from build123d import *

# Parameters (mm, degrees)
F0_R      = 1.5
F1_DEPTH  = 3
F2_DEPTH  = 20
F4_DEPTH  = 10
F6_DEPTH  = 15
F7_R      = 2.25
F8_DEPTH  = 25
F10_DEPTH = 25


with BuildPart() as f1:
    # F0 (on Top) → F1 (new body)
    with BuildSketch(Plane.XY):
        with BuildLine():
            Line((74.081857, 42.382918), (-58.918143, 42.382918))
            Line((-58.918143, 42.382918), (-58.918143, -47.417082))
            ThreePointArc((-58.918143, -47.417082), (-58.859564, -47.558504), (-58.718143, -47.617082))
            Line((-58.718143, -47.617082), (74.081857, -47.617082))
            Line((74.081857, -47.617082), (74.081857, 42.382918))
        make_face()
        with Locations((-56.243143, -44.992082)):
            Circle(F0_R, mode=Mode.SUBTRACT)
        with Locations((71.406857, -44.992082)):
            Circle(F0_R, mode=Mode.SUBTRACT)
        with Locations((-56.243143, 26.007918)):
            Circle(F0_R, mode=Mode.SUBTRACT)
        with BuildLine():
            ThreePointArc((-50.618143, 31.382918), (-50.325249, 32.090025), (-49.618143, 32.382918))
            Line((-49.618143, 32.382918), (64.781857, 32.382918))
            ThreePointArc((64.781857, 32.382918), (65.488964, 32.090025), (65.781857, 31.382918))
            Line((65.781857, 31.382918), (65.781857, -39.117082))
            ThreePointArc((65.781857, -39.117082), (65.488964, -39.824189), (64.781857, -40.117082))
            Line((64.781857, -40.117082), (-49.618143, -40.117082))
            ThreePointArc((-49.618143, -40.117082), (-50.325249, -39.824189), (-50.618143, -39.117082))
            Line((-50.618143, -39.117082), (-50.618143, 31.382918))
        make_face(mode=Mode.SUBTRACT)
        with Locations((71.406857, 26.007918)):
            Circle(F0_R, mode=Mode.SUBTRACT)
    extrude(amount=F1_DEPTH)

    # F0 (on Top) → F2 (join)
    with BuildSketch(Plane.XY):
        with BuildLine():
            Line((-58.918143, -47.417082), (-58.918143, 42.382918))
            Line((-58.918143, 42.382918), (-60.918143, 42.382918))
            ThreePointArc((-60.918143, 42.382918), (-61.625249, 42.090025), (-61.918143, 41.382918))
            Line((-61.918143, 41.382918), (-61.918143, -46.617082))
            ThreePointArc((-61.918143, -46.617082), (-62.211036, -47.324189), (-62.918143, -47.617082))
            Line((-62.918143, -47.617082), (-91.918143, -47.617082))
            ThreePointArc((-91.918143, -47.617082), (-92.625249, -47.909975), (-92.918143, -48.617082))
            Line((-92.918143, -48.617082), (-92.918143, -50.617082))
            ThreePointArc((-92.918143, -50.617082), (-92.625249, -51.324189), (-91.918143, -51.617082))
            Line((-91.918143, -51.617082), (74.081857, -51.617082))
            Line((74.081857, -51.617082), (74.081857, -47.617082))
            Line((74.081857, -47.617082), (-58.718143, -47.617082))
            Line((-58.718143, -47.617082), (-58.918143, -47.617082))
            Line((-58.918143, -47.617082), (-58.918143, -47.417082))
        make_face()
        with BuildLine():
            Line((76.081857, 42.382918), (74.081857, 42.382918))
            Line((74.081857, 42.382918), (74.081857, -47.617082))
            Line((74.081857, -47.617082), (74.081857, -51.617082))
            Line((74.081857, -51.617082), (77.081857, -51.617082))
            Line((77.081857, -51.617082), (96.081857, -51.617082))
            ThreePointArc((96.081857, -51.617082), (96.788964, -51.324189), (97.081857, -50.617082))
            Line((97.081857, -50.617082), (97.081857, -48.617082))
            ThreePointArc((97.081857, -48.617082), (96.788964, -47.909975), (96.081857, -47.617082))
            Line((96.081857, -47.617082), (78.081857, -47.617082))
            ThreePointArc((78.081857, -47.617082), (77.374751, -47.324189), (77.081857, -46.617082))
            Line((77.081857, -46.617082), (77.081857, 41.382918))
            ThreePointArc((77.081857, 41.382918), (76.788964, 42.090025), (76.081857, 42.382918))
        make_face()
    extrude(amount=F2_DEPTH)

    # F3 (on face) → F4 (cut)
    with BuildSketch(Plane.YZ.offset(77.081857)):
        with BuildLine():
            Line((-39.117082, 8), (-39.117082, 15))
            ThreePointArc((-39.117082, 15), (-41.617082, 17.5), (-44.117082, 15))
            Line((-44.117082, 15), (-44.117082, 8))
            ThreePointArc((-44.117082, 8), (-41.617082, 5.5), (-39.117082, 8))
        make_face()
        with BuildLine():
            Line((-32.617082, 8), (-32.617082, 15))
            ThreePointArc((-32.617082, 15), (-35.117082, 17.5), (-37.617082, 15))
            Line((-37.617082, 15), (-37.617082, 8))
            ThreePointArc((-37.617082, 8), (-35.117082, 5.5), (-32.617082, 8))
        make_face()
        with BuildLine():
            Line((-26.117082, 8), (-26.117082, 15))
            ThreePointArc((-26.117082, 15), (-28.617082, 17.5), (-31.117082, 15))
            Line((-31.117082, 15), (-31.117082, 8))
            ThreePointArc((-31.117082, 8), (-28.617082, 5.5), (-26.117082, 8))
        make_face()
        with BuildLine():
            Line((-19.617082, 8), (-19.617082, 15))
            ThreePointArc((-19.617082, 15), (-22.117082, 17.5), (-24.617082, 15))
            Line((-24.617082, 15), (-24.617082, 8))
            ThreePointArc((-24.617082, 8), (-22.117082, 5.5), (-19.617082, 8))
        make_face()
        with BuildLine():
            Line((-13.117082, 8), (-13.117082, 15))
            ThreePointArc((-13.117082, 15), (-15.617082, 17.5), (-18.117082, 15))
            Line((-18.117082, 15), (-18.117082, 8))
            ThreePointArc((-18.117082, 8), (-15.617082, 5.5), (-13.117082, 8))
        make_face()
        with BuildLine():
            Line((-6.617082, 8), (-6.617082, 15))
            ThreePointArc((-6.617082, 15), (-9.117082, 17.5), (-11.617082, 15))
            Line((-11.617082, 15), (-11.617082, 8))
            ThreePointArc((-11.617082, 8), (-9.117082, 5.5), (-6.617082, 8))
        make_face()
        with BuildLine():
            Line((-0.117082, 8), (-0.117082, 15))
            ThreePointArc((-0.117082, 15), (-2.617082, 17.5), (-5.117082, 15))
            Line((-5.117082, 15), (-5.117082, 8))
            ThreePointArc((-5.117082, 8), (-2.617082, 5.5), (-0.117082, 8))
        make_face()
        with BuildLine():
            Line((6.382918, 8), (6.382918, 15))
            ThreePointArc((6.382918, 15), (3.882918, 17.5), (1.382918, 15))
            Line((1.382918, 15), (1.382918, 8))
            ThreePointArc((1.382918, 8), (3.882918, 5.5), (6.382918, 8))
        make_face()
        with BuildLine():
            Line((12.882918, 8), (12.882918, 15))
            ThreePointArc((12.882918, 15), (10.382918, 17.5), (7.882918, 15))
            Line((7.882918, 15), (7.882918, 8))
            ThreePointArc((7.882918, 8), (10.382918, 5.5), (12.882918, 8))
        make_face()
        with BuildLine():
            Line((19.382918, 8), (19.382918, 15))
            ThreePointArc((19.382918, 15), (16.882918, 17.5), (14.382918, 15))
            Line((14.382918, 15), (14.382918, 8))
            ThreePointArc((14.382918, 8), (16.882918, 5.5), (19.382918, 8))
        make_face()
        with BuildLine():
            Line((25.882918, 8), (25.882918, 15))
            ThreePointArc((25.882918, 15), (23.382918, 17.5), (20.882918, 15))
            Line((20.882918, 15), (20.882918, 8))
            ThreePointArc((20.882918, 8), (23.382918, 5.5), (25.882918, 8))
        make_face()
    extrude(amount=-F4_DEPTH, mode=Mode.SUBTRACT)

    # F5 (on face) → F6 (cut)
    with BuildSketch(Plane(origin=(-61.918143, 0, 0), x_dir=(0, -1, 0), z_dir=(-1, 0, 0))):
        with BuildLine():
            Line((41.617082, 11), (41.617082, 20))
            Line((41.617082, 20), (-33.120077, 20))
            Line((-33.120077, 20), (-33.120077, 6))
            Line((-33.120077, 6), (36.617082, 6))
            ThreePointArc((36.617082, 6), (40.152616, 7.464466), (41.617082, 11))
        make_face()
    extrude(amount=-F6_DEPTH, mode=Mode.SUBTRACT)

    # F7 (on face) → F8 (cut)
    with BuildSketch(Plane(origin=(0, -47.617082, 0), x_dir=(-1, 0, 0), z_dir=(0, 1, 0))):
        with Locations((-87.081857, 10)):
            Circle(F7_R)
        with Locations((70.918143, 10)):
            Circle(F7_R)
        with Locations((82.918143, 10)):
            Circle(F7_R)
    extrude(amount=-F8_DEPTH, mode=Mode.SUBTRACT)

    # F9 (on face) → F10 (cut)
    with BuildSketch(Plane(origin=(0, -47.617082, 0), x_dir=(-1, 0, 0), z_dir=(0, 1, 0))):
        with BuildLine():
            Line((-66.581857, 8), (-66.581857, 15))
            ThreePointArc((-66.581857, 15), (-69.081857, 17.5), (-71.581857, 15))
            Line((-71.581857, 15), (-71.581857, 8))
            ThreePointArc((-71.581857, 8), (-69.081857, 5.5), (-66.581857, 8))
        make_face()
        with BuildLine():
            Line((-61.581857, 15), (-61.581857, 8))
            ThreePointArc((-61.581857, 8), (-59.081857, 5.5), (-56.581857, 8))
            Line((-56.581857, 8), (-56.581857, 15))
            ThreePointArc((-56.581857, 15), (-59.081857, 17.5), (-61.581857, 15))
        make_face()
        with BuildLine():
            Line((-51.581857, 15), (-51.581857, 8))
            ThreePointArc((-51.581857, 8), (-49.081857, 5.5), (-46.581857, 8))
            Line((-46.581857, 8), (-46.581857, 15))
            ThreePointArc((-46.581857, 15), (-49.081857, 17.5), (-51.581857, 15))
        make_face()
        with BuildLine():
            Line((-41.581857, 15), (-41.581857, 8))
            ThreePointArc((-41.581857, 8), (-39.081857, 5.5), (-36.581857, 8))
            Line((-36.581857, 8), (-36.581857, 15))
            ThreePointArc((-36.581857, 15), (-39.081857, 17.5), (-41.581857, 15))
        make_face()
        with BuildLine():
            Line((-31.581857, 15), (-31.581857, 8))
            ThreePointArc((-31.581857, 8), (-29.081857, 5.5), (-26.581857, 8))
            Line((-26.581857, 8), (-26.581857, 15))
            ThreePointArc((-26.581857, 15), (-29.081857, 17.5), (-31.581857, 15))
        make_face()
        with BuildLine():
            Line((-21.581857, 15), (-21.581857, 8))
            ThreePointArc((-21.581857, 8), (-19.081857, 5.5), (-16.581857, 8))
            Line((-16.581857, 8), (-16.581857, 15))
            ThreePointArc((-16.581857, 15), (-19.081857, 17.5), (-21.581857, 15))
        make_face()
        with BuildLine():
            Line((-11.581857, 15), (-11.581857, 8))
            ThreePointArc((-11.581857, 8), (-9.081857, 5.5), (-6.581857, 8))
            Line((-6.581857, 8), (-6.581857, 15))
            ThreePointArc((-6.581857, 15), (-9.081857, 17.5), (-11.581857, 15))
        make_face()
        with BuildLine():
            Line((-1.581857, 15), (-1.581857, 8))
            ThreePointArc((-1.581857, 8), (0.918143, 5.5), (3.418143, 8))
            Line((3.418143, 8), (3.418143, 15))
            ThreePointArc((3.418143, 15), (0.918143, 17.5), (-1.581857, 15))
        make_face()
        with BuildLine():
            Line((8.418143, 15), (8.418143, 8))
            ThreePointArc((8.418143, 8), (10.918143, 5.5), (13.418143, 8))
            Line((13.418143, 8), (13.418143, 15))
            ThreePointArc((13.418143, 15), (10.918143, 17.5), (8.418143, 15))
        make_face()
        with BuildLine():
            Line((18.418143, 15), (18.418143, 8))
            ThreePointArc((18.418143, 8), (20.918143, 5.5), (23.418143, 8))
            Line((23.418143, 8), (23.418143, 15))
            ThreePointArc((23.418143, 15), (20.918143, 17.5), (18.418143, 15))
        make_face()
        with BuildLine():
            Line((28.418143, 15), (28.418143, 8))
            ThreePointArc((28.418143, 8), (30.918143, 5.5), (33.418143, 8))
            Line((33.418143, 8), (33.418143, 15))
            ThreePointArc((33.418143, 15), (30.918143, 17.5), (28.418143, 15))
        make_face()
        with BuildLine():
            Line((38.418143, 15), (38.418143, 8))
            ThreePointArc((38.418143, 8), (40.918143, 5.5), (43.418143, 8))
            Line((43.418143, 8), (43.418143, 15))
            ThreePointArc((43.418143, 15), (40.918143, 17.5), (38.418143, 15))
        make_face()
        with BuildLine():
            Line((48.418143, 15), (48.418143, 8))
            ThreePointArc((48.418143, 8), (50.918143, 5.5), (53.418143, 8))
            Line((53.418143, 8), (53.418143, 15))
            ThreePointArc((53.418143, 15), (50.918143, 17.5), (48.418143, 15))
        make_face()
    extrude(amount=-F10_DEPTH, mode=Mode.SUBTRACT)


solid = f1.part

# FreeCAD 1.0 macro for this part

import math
import FreeCAD as App
import Part
import Sketcher

V = App.Vector
Q = App.Units.Quantity

doc = App.newDocument("Part")
body = doc.addObject("PartDesign::Body", "Body")

# Sketch on XY plane
sketch1 = body.newObject("Sketcher::SketchObject", "Sketch")
sketch1.AttachmentSupport = (doc.getObject("XY_Plane"), [""])
sketch1.MapMode = "FlatFace"
sketch1.addGeometry([
    Part.LineSegment(V(74.08, 42.38, 0), V(-58.92, 42.38, 0)),  # 0
    Part.LineSegment(V(-58.92, 42.38, 0), V(-58.92, -47.42, 0)),  # 1
    Part.ArcOfCircle(Part.Circle(V(-58.72, -47.42, 0), V(0, 0, 1), 0.2), math.radians(180), math.radians(270)),  # 2
    Part.LineSegment(V(-58.72, -47.62, 0), V(74.08, -47.62, 0)),  # 3
    Part.LineSegment(V(74.08, -47.62, 0), V(74.08, 42.38, 0)),  # 4
    Part.Circle(V(-56.24, -44.99, 0), V(0, 0, 1), 1.5),  # 5
    Part.Circle(V(71.41, -44.99, 0), V(0, 0, 1), 1.5),  # 6
    Part.Circle(V(-56.24, 26.01, 0), V(0, 0, 1), 1.5),  # 7
    Part.LineSegment(V(-50.62, -39.12, 0), V(-50.62, 31.38, 0)),  # 8
    Part.ArcOfCircle(Part.Circle(V(-49.62, 31.38, 0), V(0, 0, 1), 1), math.radians(90), math.radians(180)),  # 9
    Part.LineSegment(V(-49.62, 32.38, 0), V(64.78, 32.38, 0)),  # 10
    Part.ArcOfCircle(Part.Circle(V(64.78, 31.38, 0), V(0, 0, 1), 1), math.radians(0), math.radians(90)),  # 11
    Part.LineSegment(V(65.78, 31.38, 0), V(65.78, -39.12, 0)),  # 12
    Part.ArcOfCircle(Part.Circle(V(64.78, -39.12, 0), V(0, 0, 1), 1), math.radians(-90), math.radians(0)),  # 13
    Part.LineSegment(V(64.78, -40.12, 0), V(-49.62, -40.12, 0)),  # 14
    Part.ArcOfCircle(Part.Circle(V(-49.62, -39.12, 0), V(0, 0, 1), 1), math.radians(-180), math.radians(-90)),  # 15
    Part.Circle(V(71.41, 26.01, 0), V(0, 0, 1), 1.5),  # 16
], False)
sketch1.addConstraint([
    Sketcher.Constraint("Coincident", 0, 2, 1, 1),
    Sketcher.Constraint("Coincident", 1, 2, 2, 1),
    Sketcher.Constraint("Coincident", 2, 2, 3, 1),
    Sketcher.Constraint("Coincident", 3, 2, 4, 1),
    Sketcher.Constraint("Coincident", 4, 2, 0, 1),
    Sketcher.Constraint("Tangent", 8, 2, 9, 2),
    Sketcher.Constraint("Tangent", 9, 1, 10, 1),
    Sketcher.Constraint("Tangent", 10, 2, 11, 2),
    Sketcher.Constraint("Tangent", 11, 1, 12, 1),
    Sketcher.Constraint("Tangent", 12, 2, 13, 2),
    Sketcher.Constraint("Tangent", 13, 1, 14, 1),
    Sketcher.Constraint("Tangent", 14, 2, 15, 2),
    Sketcher.Constraint("Tangent", 15, 1, 8, 1),
    Sketcher.Constraint("Horizontal", 0),
    Sketcher.Constraint("Vertical", 1),
    Sketcher.Constraint("Horizontal", 3),
    Sketcher.Constraint("Vertical", 4),
    Sketcher.Constraint("Vertical", 8),
    Sketcher.Constraint("Horizontal", 10),
    Sketcher.Constraint("Vertical", 12),
    Sketcher.Constraint("Horizontal", 14),
    Sketcher.Constraint("Equal", 5, 6),
    Sketcher.Constraint("Equal", 6, 7),
    Sketcher.Constraint("Equal", 9, 11),
    Sketcher.Constraint("Equal", 11, 13),
    Sketcher.Constraint("Equal", 13, 15),
    Sketcher.Constraint("Equal", 7, 16),
    Sketcher.Constraint("Horizontal", 5, 3, 6, 3),
    Sketcher.Constraint("Horizontal", 7, 3, 16, 3),
    Sketcher.Constraint("Horizontal", 2, 3, 1, 2),
    Sketcher.Constraint("Vertical", 5, 3, 7, 3),
    Sketcher.Constraint("Vertical", 6, 3, 16, 3),
    Sketcher.Constraint("Diameter", 5, Q("3 mm")),
    Sketcher.Constraint("Radius", 9, Q("1.000001 mm")),
    Sketcher.Constraint("Radius", 2, Q("0.2 mm")),
    Sketcher.Constraint("DistanceX", 0, 2, 0, 1, Q("133 mm")),
    Sketcher.Constraint("DistanceY", 4, 1, 4, 2, Q("90 mm")),
    Sketcher.Constraint("DistanceX", 3, 1, 3, 2, Q("132.8 mm")),
    Sketcher.Constraint("DistanceX", 10, 1, 10, 2, Q("114.4 mm")),
    Sketcher.Constraint("DistanceY", 8, 1, 8, 2, Q("70.5 mm")),
    Sketcher.Constraint("DistanceY", 5, 3, 7, 3, Q("71 mm")),
    Sketcher.Constraint("DistanceY", 9, 3, 0, 2, Q("11.000001 mm")),
    Sketcher.Constraint("DistanceX", 2, 3, 9, 3, Q("9.100001 mm")),
    Sketcher.Constraint("DistanceX", 5, 3, 6, 3, Q("127.65 mm")),
    Sketcher.Constraint("DistanceX", 2, 3, 5, 3, Q("2.475 mm")),
    Sketcher.Constraint("DistanceY", 2, 3, 5, 3, Q("2.425 mm")),
    Sketcher.Constraint("DistanceY", -1, 1, 7, 3, Q("26.007918 mm")),
    Sketcher.Constraint("DistanceX", 2, 3, -1, 1, Q("58.718143 mm")),
])
pad1 = body.newObject("PartDesign::Pad", "Pad")
pad1.Profile = sketch1
pad1.Length = 3

# Sketch on XY plane
sketch2 = body.newObject("Sketcher::SketchObject", "Sketch001")
sketch2.AttachmentSupport = (doc.getObject("XY_Plane"), [""])
sketch2.MapMode = "FlatFace"
sketch2.addGeometry([
    Part.LineSegment(V(74.1, -47.6, 0), V(-58.9, -47.6, 0)),  # 0
    Part.LineSegment(V(-58.9, -47.6, 0), V(-58.9, 42.4, 0)),  # 1
    Part.LineSegment(V(-58.9, 42.4, 0), V(-60.9, 42.4, 0)),  # 2
    Part.ArcOfCircle(Part.Circle(V(-60.9, 41.4, 0), V(0, 0, 1), 1), math.radians(90), math.radians(180)),  # 3
    Part.LineSegment(V(-61.9, 41.4, 0), V(-61.9, -46.6, 0)),  # 4
    Part.ArcOfCircle(Part.Circle(V(-62.9, -46.6, 0), V(0, 0, 1), 1), math.radians(-90), math.radians(0)),  # 5
    Part.LineSegment(V(-62.9, -47.6, 0), V(-91.9, -47.6, 0)),  # 6
    Part.ArcOfCircle(Part.Circle(V(-91.9, -48.6, 0), V(0, 0, 1), 1), math.radians(90), math.radians(180)),  # 7
    Part.LineSegment(V(-92.9, -48.6, 0), V(-92.9, -50.6, 0)),  # 8
    Part.ArcOfCircle(Part.Circle(V(-91.9, -50.6, 0), V(0, 0, 1), 1), math.radians(-180), math.radians(-90)),  # 9
    Part.LineSegment(V(-91.9, -51.6, 0), V(96.1, -51.6, 0)),  # 10
    Part.ArcOfCircle(Part.Circle(V(96.1, -50.6, 0), V(0, 0, 1), 1), math.radians(-90), math.radians(0)),  # 11
    Part.LineSegment(V(97.1, -50.6, 0), V(97.1, -48.6, 0)),  # 12
    Part.ArcOfCircle(Part.Circle(V(96.1, -48.6, 0), V(0, 0, 1), 1), math.radians(0), math.radians(90)),  # 13
    Part.LineSegment(V(96.1, -47.6, 0), V(78.1, -47.6, 0)),  # 14
    Part.ArcOfCircle(Part.Circle(V(78.1, -46.6, 0), V(0, 0, 1), 1), math.radians(-180), math.radians(-90)),  # 15
    Part.LineSegment(V(77.1, -46.6, 0), V(77.1, 41.4, 0)),  # 16
    Part.ArcOfCircle(Part.Circle(V(76.1, 41.4, 0), V(0, 0, 1), 1), math.radians(0), math.radians(90)),  # 17
    Part.LineSegment(V(76.1, 42.4, 0), V(74.1, 42.4, 0)),  # 18
    Part.LineSegment(V(74.1, 42.4, 0), V(74.1, -47.6, 0)),  # 19
], False)
sketch2.addConstraint([
    Sketcher.Constraint("Coincident", 0, 2, 1, 1),
    Sketcher.Constraint("Coincident", 1, 2, 2, 1),
    Sketcher.Constraint("Tangent", 2, 2, 3, 1),
    Sketcher.Constraint("Tangent", 3, 2, 4, 1),
    Sketcher.Constraint("Tangent", 4, 2, 5, 2),
    Sketcher.Constraint("Tangent", 5, 1, 6, 1),
    Sketcher.Constraint("Tangent", 6, 2, 7, 1),
    Sketcher.Constraint("Tangent", 7, 2, 8, 1),
    Sketcher.Constraint("Tangent", 8, 2, 9, 1),
    Sketcher.Constraint("Tangent", 9, 2, 10, 1),
    Sketcher.Constraint("Tangent", 10, 2, 11, 1),
    Sketcher.Constraint("Tangent", 11, 2, 12, 1),
    Sketcher.Constraint("Tangent", 12, 2, 13, 1),
    Sketcher.Constraint("Tangent", 13, 2, 14, 1),
    Sketcher.Constraint("Tangent", 14, 2, 15, 2),
    Sketcher.Constraint("Tangent", 15, 1, 16, 1),
    Sketcher.Constraint("Tangent", 16, 2, 17, 1),
    Sketcher.Constraint("Tangent", 17, 2, 18, 1),
    Sketcher.Constraint("Coincident", 18, 2, 19, 1),
    Sketcher.Constraint("Coincident", 19, 2, 0, 1),
    Sketcher.Constraint("Horizontal", 0),
    Sketcher.Constraint("Vertical", 1),
    Sketcher.Constraint("Horizontal", 2),
    Sketcher.Constraint("Vertical", 4),
    Sketcher.Constraint("Horizontal", 6),
    Sketcher.Constraint("Vertical", 8),
    Sketcher.Constraint("Horizontal", 10),
    Sketcher.Constraint("Vertical", 12),
    Sketcher.Constraint("Horizontal", 14),
    Sketcher.Constraint("Vertical", 16),
    Sketcher.Constraint("Horizontal", 18),
    Sketcher.Constraint("Vertical", 19),
    Sketcher.Constraint("Equal", 3, 5),
    Sketcher.Constraint("Equal", 5, 7),
    Sketcher.Constraint("Equal", 7, 9),
    Sketcher.Constraint("Equal", 9, 11),
    Sketcher.Constraint("Equal", 11, 13),
    Sketcher.Constraint("Equal", 13, 15),
    Sketcher.Constraint("Equal", 15, 17),
    Sketcher.Constraint("Horizontal", 7, 3, 13, 3),
    Sketcher.Constraint("Horizontal", 3, 3, 17, 3),
    Sketcher.Constraint("Horizontal", 0, 2, 5, 1),
    Sketcher.Constraint("Equal", 2, 18),
    Sketcher.Constraint("Equal", 18, 8),
    Sketcher.Constraint("Radius", 3, Q("1.000001 mm")),
    Sketcher.Constraint("DistanceX", 0, 2, 0, 1, Q("133 mm")),
    Sketcher.Constraint("DistanceX", 2, 2, 2, 1, Q("2 mm")),
    Sketcher.Constraint("DistanceX", 6, 2, 6, 1, Q("29 mm")),
    Sketcher.Constraint("DistanceX", 10, 1, 10, 2, Q("188 mm")),
    Sketcher.Constraint("DistanceY", 1, 1, 1, 2, Q("90 mm")),
    Sketcher.Constraint("DistanceY", 9, 3, -1, 1, Q("50.617081 mm")),
    Sketcher.Constraint("DistanceX", 3, 3, -1, 1, Q("60.918142 mm")),
])
pad2 = body.newObject("PartDesign::Pad", "Pad001")
pad2.Profile = sketch2
pad2.Length = 20

# Sketch on YZ plane
sketch3 = body.newObject("Sketcher::SketchObject", "Sketch002")
sketch3.AttachmentSupport = (doc.getObject("YZ_Plane"), [""])
sketch3.MapMode = "FlatFace"
sketch3.AttachmentOffset = App.Placement(V(0, 0, 77.081857), App.Rotation())
sketch3.addGeometry([
    Part.LineSegment(V(-39.1, 8, 0), V(-39.1, 15, 0)),  # 0
    Part.ArcOfCircle(Part.Circle(V(-41.6, 15, 0), V(0, 0, 1), 2.5), math.radians(0), math.radians(180)),  # 1
    Part.LineSegment(V(-44.1, 15, 0), V(-44.1, 8, 0)),  # 2
    Part.ArcOfCircle(Part.Circle(V(-41.6, 8, 0), V(0, 0, 1), 2.5), math.radians(180), math.radians(360)),  # 3
    Part.LineSegment(V(-32.6, 8, 0), V(-32.6, 15, 0)),  # 4
    Part.ArcOfCircle(Part.Circle(V(-35.1, 15, 0), V(0, 0, 1), 2.5), math.radians(0), math.radians(180)),  # 5
    Part.LineSegment(V(-37.6, 15, 0), V(-37.6, 8, 0)),  # 6
    Part.ArcOfCircle(Part.Circle(V(-35.1, 8, 0), V(0, 0, 1), 2.5), math.radians(180), math.radians(360)),  # 7
    Part.LineSegment(V(-26.1, 8, 0), V(-26.1, 15, 0)),  # 8
    Part.ArcOfCircle(Part.Circle(V(-28.6, 15, 0), V(0, 0, 1), 2.5), math.radians(0), math.radians(180)),  # 9
    Part.LineSegment(V(-31.1, 15, 0), V(-31.1, 8, 0)),  # 10
    Part.ArcOfCircle(Part.Circle(V(-28.6, 8, 0), V(0, 0, 1), 2.5), math.radians(180), math.radians(360)),  # 11
    Part.LineSegment(V(-19.6, 8, 0), V(-19.6, 15, 0)),  # 12
    Part.ArcOfCircle(Part.Circle(V(-22.1, 15, 0), V(0, 0, 1), 2.5), math.radians(0), math.radians(180)),  # 13
    Part.LineSegment(V(-24.6, 15, 0), V(-24.6, 8, 0)),  # 14
    Part.ArcOfCircle(Part.Circle(V(-22.1, 8, 0), V(0, 0, 1), 2.5), math.radians(180), math.radians(360)),  # 15
    Part.LineSegment(V(-13.1, 8, 0), V(-13.1, 15, 0)),  # 16
    Part.ArcOfCircle(Part.Circle(V(-15.6, 15, 0), V(0, 0, 1), 2.5), math.radians(0), math.radians(180)),  # 17
    Part.LineSegment(V(-18.1, 15, 0), V(-18.1, 8, 0)),  # 18
    Part.ArcOfCircle(Part.Circle(V(-15.6, 8, 0), V(0, 0, 1), 2.5), math.radians(180), math.radians(360)),  # 19
    Part.LineSegment(V(-6.6, 8, 0), V(-6.6, 15, 0)),  # 20
    Part.ArcOfCircle(Part.Circle(V(-9.1, 15, 0), V(0, 0, 1), 2.5), math.radians(0), math.radians(180)),  # 21
    Part.LineSegment(V(-11.6, 15, 0), V(-11.6, 8, 0)),  # 22
    Part.ArcOfCircle(Part.Circle(V(-9.1, 8, 0), V(0, 0, 1), 2.5), math.radians(180), math.radians(360)),  # 23
    Part.LineSegment(V(-0.1, 8, 0), V(-0.1, 15, 0)),  # 24
    Part.ArcOfCircle(Part.Circle(V(-2.6, 15, 0), V(0, 0, 1), 2.5), math.radians(0), math.radians(180)),  # 25
    Part.LineSegment(V(-5.1, 15, 0), V(-5.1, 8, 0)),  # 26
    Part.ArcOfCircle(Part.Circle(V(-2.6, 8, 0), V(0, 0, 1), 2.5), math.radians(180), math.radians(360)),  # 27
    Part.LineSegment(V(6.4, 8, 0), V(6.4, 15, 0)),  # 28
    Part.ArcOfCircle(Part.Circle(V(3.9, 15, 0), V(0, 0, 1), 2.5), math.radians(0), math.radians(180)),  # 29
    Part.LineSegment(V(1.4, 15, 0), V(1.4, 8, 0)),  # 30
    Part.ArcOfCircle(Part.Circle(V(3.9, 8, 0), V(0, 0, 1), 2.5), math.radians(180), math.radians(360)),  # 31
    Part.LineSegment(V(12.9, 8, 0), V(12.9, 15, 0)),  # 32
    Part.ArcOfCircle(Part.Circle(V(10.4, 15, 0), V(0, 0, 1), 2.5), math.radians(0), math.radians(180)),  # 33
    Part.LineSegment(V(7.9, 15, 0), V(7.9, 8, 0)),  # 34
    Part.ArcOfCircle(Part.Circle(V(10.4, 8, 0), V(0, 0, 1), 2.5), math.radians(180), math.radians(360)),  # 35
    Part.LineSegment(V(19.4, 8, 0), V(19.4, 15, 0)),  # 36
    Part.ArcOfCircle(Part.Circle(V(16.9, 15, 0), V(0, 0, 1), 2.5), math.radians(0), math.radians(180)),  # 37
    Part.LineSegment(V(14.4, 15, 0), V(14.4, 8, 0)),  # 38
    Part.ArcOfCircle(Part.Circle(V(16.9, 8, 0), V(0, 0, 1), 2.5), math.radians(180), math.radians(360)),  # 39
    Part.LineSegment(V(25.9, 8, 0), V(25.9, 15, 0)),  # 40
    Part.ArcOfCircle(Part.Circle(V(23.4, 15, 0), V(0, 0, 1), 2.5), math.radians(0), math.radians(180)),  # 41
    Part.LineSegment(V(20.9, 15, 0), V(20.9, 8, 0)),  # 42
    Part.ArcOfCircle(Part.Circle(V(23.4, 8, 0), V(0, 0, 1), 2.5), math.radians(180), math.radians(360)),  # 43
], False)
sketch3.addConstraint([
    Sketcher.Constraint("Tangent", 0, 2, 1, 1),
    Sketcher.Constraint("Tangent", 1, 2, 2, 1),
    Sketcher.Constraint("Tangent", 2, 2, 3, 1),
    Sketcher.Constraint("Tangent", 3, 2, 0, 1),
    Sketcher.Constraint("Tangent", 4, 2, 5, 1),
    Sketcher.Constraint("Tangent", 5, 2, 6, 1),
    Sketcher.Constraint("Tangent", 6, 2, 7, 1),
    Sketcher.Constraint("Tangent", 7, 2, 4, 1),
    Sketcher.Constraint("Tangent", 8, 2, 9, 1),
    Sketcher.Constraint("Tangent", 9, 2, 10, 1),
    Sketcher.Constraint("Tangent", 10, 2, 11, 1),
    Sketcher.Constraint("Tangent", 11, 2, 8, 1),
    Sketcher.Constraint("Tangent", 12, 2, 13, 1),
    Sketcher.Constraint("Tangent", 13, 2, 14, 1),
    Sketcher.Constraint("Tangent", 14, 2, 15, 1),
    Sketcher.Constraint("Tangent", 15, 2, 12, 1),
    Sketcher.Constraint("Tangent", 16, 2, 17, 1),
    Sketcher.Constraint("Tangent", 17, 2, 18, 1),
    Sketcher.Constraint("Tangent", 18, 2, 19, 1),
    Sketcher.Constraint("Tangent", 19, 2, 16, 1),
    Sketcher.Constraint("Tangent", 20, 2, 21, 1),
    Sketcher.Constraint("Tangent", 21, 2, 22, 1),
    Sketcher.Constraint("Tangent", 22, 2, 23, 1),
    Sketcher.Constraint("Tangent", 23, 2, 20, 1),
    Sketcher.Constraint("Tangent", 24, 2, 25, 1),
    Sketcher.Constraint("Tangent", 25, 2, 26, 1),
    Sketcher.Constraint("Tangent", 26, 2, 27, 1),
    Sketcher.Constraint("Tangent", 27, 2, 24, 1),
    Sketcher.Constraint("Tangent", 28, 2, 29, 1),
    Sketcher.Constraint("Tangent", 29, 2, 30, 1),
    Sketcher.Constraint("Tangent", 30, 2, 31, 1),
    Sketcher.Constraint("Tangent", 31, 2, 28, 1),
    Sketcher.Constraint("Tangent", 32, 2, 33, 1),
    Sketcher.Constraint("Tangent", 33, 2, 34, 1),
    Sketcher.Constraint("Tangent", 34, 2, 35, 1),
    Sketcher.Constraint("Tangent", 35, 2, 32, 1),
    Sketcher.Constraint("Tangent", 36, 2, 37, 1),
    Sketcher.Constraint("Tangent", 37, 2, 38, 1),
    Sketcher.Constraint("Tangent", 38, 2, 39, 1),
    Sketcher.Constraint("Tangent", 39, 2, 36, 1),
    Sketcher.Constraint("Tangent", 40, 2, 41, 1),
    Sketcher.Constraint("Tangent", 41, 2, 42, 1),
    Sketcher.Constraint("Tangent", 42, 2, 43, 1),
    Sketcher.Constraint("Tangent", 43, 2, 40, 1),
    Sketcher.Constraint("Vertical", 0),
    Sketcher.Constraint("Vertical", 2),
    Sketcher.Constraint("Vertical", 4),
    Sketcher.Constraint("Vertical", 6),
    Sketcher.Constraint("Vertical", 8),
    Sketcher.Constraint("Vertical", 10),
    Sketcher.Constraint("Vertical", 12),
    Sketcher.Constraint("Vertical", 14),
    Sketcher.Constraint("Vertical", 16),
    Sketcher.Constraint("Vertical", 18),
    Sketcher.Constraint("Vertical", 20),
    Sketcher.Constraint("Vertical", 22),
    Sketcher.Constraint("Vertical", 24),
    Sketcher.Constraint("Vertical", 26),
    Sketcher.Constraint("Vertical", 28),
    Sketcher.Constraint("Vertical", 30),
    Sketcher.Constraint("Vertical", 32),
    Sketcher.Constraint("Vertical", 34),
    Sketcher.Constraint("Vertical", 36),
    Sketcher.Constraint("Vertical", 38),
    Sketcher.Constraint("Vertical", 40),
    Sketcher.Constraint("Vertical", 42),
    Sketcher.Constraint("Equal", 3, 5),
    Sketcher.Constraint("Equal", 7, 9),
    Sketcher.Constraint("Equal", 11, 13),
    Sketcher.Constraint("Equal", 15, 17),
    Sketcher.Constraint("Equal", 19, 21),
    Sketcher.Constraint("Equal", 23, 25),
    Sketcher.Constraint("Equal", 27, 29),
    Sketcher.Constraint("Equal", 31, 33),
    Sketcher.Constraint("Equal", 35, 37),
    Sketcher.Constraint("Equal", 39, 41),
    Sketcher.Constraint("Horizontal", 1, 3, 5, 3),
    Sketcher.Constraint("Horizontal", 3, 3, 7, 3),
    Sketcher.Constraint("Horizontal", 5, 3, 9, 3),
    Sketcher.Constraint("Horizontal", 7, 3, 11, 3),
    Sketcher.Constraint("Horizontal", 9, 3, 13, 3),
    Sketcher.Constraint("Horizontal", 11, 3, 15, 3),
    Sketcher.Constraint("Horizontal", 13, 3, 17, 3),
    Sketcher.Constraint("Horizontal", 15, 3, 19, 3),
    Sketcher.Constraint("Horizontal", 17, 3, 21, 3),
    Sketcher.Constraint("Horizontal", 19, 3, 23, 3),
    Sketcher.Constraint("Horizontal", 21, 3, 25, 3),
    Sketcher.Constraint("Horizontal", 23, 3, 27, 3),
    Sketcher.Constraint("Horizontal", 25, 3, 29, 3),
    Sketcher.Constraint("Horizontal", 27, 3, 31, 3),
    Sketcher.Constraint("Horizontal", 29, 3, 33, 3),
    Sketcher.Constraint("Horizontal", 31, 3, 35, 3),
    Sketcher.Constraint("Horizontal", 33, 3, 37, 3),
    Sketcher.Constraint("Horizontal", 35, 3, 39, 3),
    Sketcher.Constraint("Horizontal", 37, 3, 41, 3),
    Sketcher.Constraint("Horizontal", 39, 3, 43, 3),
    Sketcher.Constraint("Radius", 1, Q("2.5 mm")),
    Sketcher.Constraint("DistanceY", 0, 1, 0, 2, Q("7 mm")),
    Sketcher.Constraint("DistanceY", -1, 1, 1, 3, Q("15 mm")),
    Sketcher.Constraint("DistanceX", 9, 3, -1, 1, Q("28.617082 mm")),
    Sketcher.Constraint("DistanceX", 13, 3, -1, 1, Q("22.117082 mm")),
    Sketcher.Constraint("DistanceX", 25, 3, -1, 1, Q("2.617082 mm")),
    Sketcher.Constraint("DistanceX", -1, 1, 29, 3, Q("3.882918 mm")),
    Sketcher.Constraint("DistanceX", -1, 1, 37, 3, Q("16.882918 mm")),
    Sketcher.Constraint("DistanceX", -1, 1, 41, 3, Q("23.382918 mm")),
    Sketcher.Constraint("DistanceX", 17, 2, -1, 1, Q("18.117082 mm")),
    Sketcher.Constraint("DistanceX", 1, 3, -1, 1, Q("41.617082 mm")),
    Sketcher.Constraint("DistanceX", 5, 3, -1, 1, Q("35.117082 mm")),
    Sketcher.Constraint("DistanceX", 21, 3, -1, 1, Q("9.117082 mm")),
    Sketcher.Constraint("DistanceX", -1, 1, 33, 3, Q("10.382918 mm")),
])
pocket1 = body.newObject("PartDesign::Pocket", "Pocket")
pocket1.Profile = sketch3
pocket1.Length = 10

# Sketch on YZ plane
sketch4 = body.newObject("Sketcher::SketchObject", "Sketch003")
sketch4.AttachmentSupport = (doc.getObject("YZ_Plane"), [""])
sketch4.MapMode = "FlatFace"
sketch4.AttachmentOffset = App.Placement(V(0, 0, -61.918143), App.Rotation())
sketch4.addGeometry([
    Part.LineSegment(V(-41.6, 11, 0), V(-41.6, 20, 0)),  # 0
    Part.LineSegment(V(-41.6, 20, 0), V(33.1, 20, 0)),  # 1
    Part.LineSegment(V(33.1, 20, 0), V(33.1, 6, 0)),  # 2
    Part.LineSegment(V(33.1, 6, 0), V(-36.6, 6, 0)),  # 3
    Part.ArcOfCircle(Part.Circle(V(-36.6, 11, 0), V(0, 0, 1), 5), math.radians(180), math.radians(270)),  # 4
], False)
sketch4.addConstraint([
    Sketcher.Constraint("Coincident", 0, 2, 1, 1),
    Sketcher.Constraint("Coincident", 1, 2, 2, 1),
    Sketcher.Constraint("Coincident", 2, 2, 3, 1),
    Sketcher.Constraint("Tangent", 3, 2, 4, 2),
    Sketcher.Constraint("Tangent", 4, 1, 0, 1),
    Sketcher.Constraint("Vertical", 0),
    Sketcher.Constraint("Horizontal", 1),
    Sketcher.Constraint("Vertical", 2),
    Sketcher.Constraint("Horizontal", 3),
    Sketcher.Constraint("Radius", 4, Q("5 mm")),
    Sketcher.Constraint("DistanceY", 0, 1, 0, 2, Q("9 mm")),
    Sketcher.Constraint("DistanceY", -1, 1, 4, 3, Q("11 mm")),
    Sketcher.Constraint("DistanceX", 1, 1, 1, 2, Q("74.737159 mm")),
    Sketcher.Constraint("DistanceX", 4, 1, -1, 1, Q("41.617082 mm")),
])
pocket2 = body.newObject("PartDesign::Pocket", "Pocket001")
pocket2.Profile = sketch4
pocket2.Length = 15
pocket2.Reversed = True

# Sketch on XZ plane
sketch5 = body.newObject("Sketcher::SketchObject", "Sketch004")
sketch5.AttachmentSupport = (doc.getObject("XZ_Plane"), [""])
sketch5.MapMode = "FlatFace"
sketch5.AttachmentOffset = App.Placement(V(0, 0, 47.617082), App.Rotation())
sketch5.addGeometry([
    Part.Circle(V(87.1, 10, 0), V(0, 0, 1), 2.2),
    Part.Circle(V(-70.9, 10, 0), V(0, 0, 1), 2.2),
    Part.Circle(V(-82.9, 10, 0), V(0, 0, 1), 2.2),
], False)
sketch5.addConstraint([
    Sketcher.Constraint("Equal", 0, 1),
    Sketcher.Constraint("Equal", 1, 2),
    Sketcher.Constraint("Horizontal", 0, 3, 1, 3),
    Sketcher.Constraint("Horizontal", 1, 3, 2, 3),
    Sketcher.Constraint("Diameter", 0, Q("4.5 mm")),
    Sketcher.Constraint("DistanceY", -1, 1, 0, 3, Q("10 mm")),
    Sketcher.Constraint("DistanceX", 1, 3, 0, 3, Q("158 mm")),
    Sketcher.Constraint("DistanceX", 2, 3, 1, 3, Q("12 mm")),
    Sketcher.Constraint("DistanceX", -1, 1, 0, 3, Q("87.081857 mm")),
])
pocket3 = body.newObject("PartDesign::Pocket", "Pocket002")
pocket3.Profile = sketch5
pocket3.Length = 25
pocket3.Reversed = True

# Sketch on XZ plane
sketch6 = body.newObject("Sketcher::SketchObject", "Sketch005")
sketch6.AttachmentSupport = (doc.getObject("XZ_Plane"), [""])
sketch6.MapMode = "FlatFace"
sketch6.AttachmentOffset = App.Placement(V(0, 0, 47.617082), App.Rotation())
sketch6.addGeometry([
    Part.LineSegment(V(66.6, 8, 0), V(66.6, 15, 0)),  # 0
    Part.ArcOfCircle(Part.Circle(V(69.1, 15, 0), V(0, 0, 1), 2.5), math.radians(0), math.radians(180)),  # 1
    Part.LineSegment(V(71.6, 15, 0), V(71.6, 8, 0)),  # 2
    Part.ArcOfCircle(Part.Circle(V(69.1, 8, 0), V(0, 0, 1), 2.5), math.radians(180), math.radians(360)),  # 3
    Part.LineSegment(V(61.6, 15, 0), V(61.6, 8, 0)),  # 4
    Part.ArcOfCircle(Part.Circle(V(59.1, 8, 0), V(0, 0, 1), 2.5), math.radians(180), math.radians(360)),  # 5
    Part.LineSegment(V(56.6, 8, 0), V(56.6, 15, 0)),  # 6
    Part.ArcOfCircle(Part.Circle(V(59.1, 15, 0), V(0, 0, 1), 2.5), math.radians(0), math.radians(180)),  # 7
    Part.LineSegment(V(51.6, 15, 0), V(51.6, 8, 0)),  # 8
    Part.ArcOfCircle(Part.Circle(V(49.1, 8, 0), V(0, 0, 1), 2.5), math.radians(180), math.radians(360)),  # 9
    Part.LineSegment(V(46.6, 8, 0), V(46.6, 15, 0)),  # 10
    Part.ArcOfCircle(Part.Circle(V(49.1, 15, 0), V(0, 0, 1), 2.5), math.radians(0), math.radians(180)),  # 11
    Part.LineSegment(V(41.6, 15, 0), V(41.6, 8, 0)),  # 12
    Part.ArcOfCircle(Part.Circle(V(39.1, 8, 0), V(0, 0, 1), 2.5), math.radians(180), math.radians(360)),  # 13
    Part.LineSegment(V(36.6, 8, 0), V(36.6, 15, 0)),  # 14
    Part.ArcOfCircle(Part.Circle(V(39.1, 15, 0), V(0, 0, 1), 2.5), math.radians(0), math.radians(180)),  # 15
    Part.LineSegment(V(31.6, 15, 0), V(31.6, 8, 0)),  # 16
    Part.ArcOfCircle(Part.Circle(V(29.1, 8, 0), V(0, 0, 1), 2.5), math.radians(180), math.radians(360)),  # 17
    Part.LineSegment(V(26.6, 8, 0), V(26.6, 15, 0)),  # 18
    Part.ArcOfCircle(Part.Circle(V(29.1, 15, 0), V(0, 0, 1), 2.5), math.radians(0), math.radians(180)),  # 19
    Part.LineSegment(V(21.6, 15, 0), V(21.6, 8, 0)),  # 20
    Part.ArcOfCircle(Part.Circle(V(19.1, 8, 0), V(0, 0, 1), 2.5), math.radians(180), math.radians(360)),  # 21
    Part.LineSegment(V(16.6, 8, 0), V(16.6, 15, 0)),  # 22
    Part.ArcOfCircle(Part.Circle(V(19.1, 15, 0), V(0, 0, 1), 2.5), math.radians(0), math.radians(180)),  # 23
    Part.LineSegment(V(11.6, 15, 0), V(11.6, 8, 0)),  # 24
    Part.ArcOfCircle(Part.Circle(V(9.1, 8, 0), V(0, 0, 1), 2.5), math.radians(180), math.radians(360)),  # 25
    Part.LineSegment(V(6.6, 8, 0), V(6.6, 15, 0)),  # 26
    Part.ArcOfCircle(Part.Circle(V(9.1, 15, 0), V(0, 0, 1), 2.5), math.radians(0), math.radians(180)),  # 27
    Part.LineSegment(V(1.6, 15, 0), V(1.6, 8, 0)),  # 28
    Part.ArcOfCircle(Part.Circle(V(-0.9, 8, 0), V(0, 0, 1), 2.5), math.radians(180), math.radians(360)),  # 29
    Part.LineSegment(V(-3.4, 8, 0), V(-3.4, 15, 0)),  # 30
    Part.ArcOfCircle(Part.Circle(V(-0.9, 15, 0), V(0, 0, 1), 2.5), math.radians(0), math.radians(180)),  # 31
    Part.LineSegment(V(-8.4, 15, 0), V(-8.4, 8, 0)),  # 32
    Part.ArcOfCircle(Part.Circle(V(-10.9, 8, 0), V(0, 0, 1), 2.5), math.radians(180), math.radians(360)),  # 33
    Part.LineSegment(V(-13.4, 8, 0), V(-13.4, 15, 0)),  # 34
    Part.ArcOfCircle(Part.Circle(V(-10.9, 15, 0), V(0, 0, 1), 2.5), math.radians(0), math.radians(180)),  # 35
    Part.LineSegment(V(-18.4, 15, 0), V(-18.4, 8, 0)),  # 36
    Part.ArcOfCircle(Part.Circle(V(-20.9, 8, 0), V(0, 0, 1), 2.5), math.radians(180), math.radians(360)),  # 37
    Part.LineSegment(V(-23.4, 8, 0), V(-23.4, 15, 0)),  # 38
    Part.ArcOfCircle(Part.Circle(V(-20.9, 15, 0), V(0, 0, 1), 2.5), math.radians(0), math.radians(180)),  # 39
    Part.LineSegment(V(-28.4, 15, 0), V(-28.4, 8, 0)),  # 40
    Part.ArcOfCircle(Part.Circle(V(-30.9, 8, 0), V(0, 0, 1), 2.5), math.radians(180), math.radians(360)),  # 41
    Part.LineSegment(V(-33.4, 8, 0), V(-33.4, 15, 0)),  # 42
    Part.ArcOfCircle(Part.Circle(V(-30.9, 15, 0), V(0, 0, 1), 2.5), math.radians(0), math.radians(180)),  # 43
    Part.LineSegment(V(-38.4, 15, 0), V(-38.4, 8, 0)),  # 44
    Part.ArcOfCircle(Part.Circle(V(-40.9, 8, 0), V(0, 0, 1), 2.5), math.radians(180), math.radians(360)),  # 45
    Part.LineSegment(V(-43.4, 8, 0), V(-43.4, 15, 0)),  # 46
    Part.ArcOfCircle(Part.Circle(V(-40.9, 15, 0), V(0, 0, 1), 2.5), math.radians(0), math.radians(180)),  # 47
    Part.LineSegment(V(-48.4, 15, 0), V(-48.4, 8, 0)),  # 48
    Part.ArcOfCircle(Part.Circle(V(-50.9, 8, 0), V(0, 0, 1), 2.5), math.radians(180), math.radians(360)),  # 49
    Part.LineSegment(V(-53.4, 8, 0), V(-53.4, 15, 0)),  # 50
    Part.ArcOfCircle(Part.Circle(V(-50.9, 15, 0), V(0, 0, 1), 2.5), math.radians(0), math.radians(180)),  # 51
], False)
sketch6.addConstraint([
    Sketcher.Constraint("Tangent", 0, 2, 1, 2),
    Sketcher.Constraint("Tangent", 1, 1, 2, 1),
    Sketcher.Constraint("Tangent", 2, 2, 3, 2),
    Sketcher.Constraint("Tangent", 3, 1, 0, 1),
    Sketcher.Constraint("Tangent", 4, 2, 5, 2),
    Sketcher.Constraint("Tangent", 5, 1, 6, 1),
    Sketcher.Constraint("Tangent", 6, 2, 7, 2),
    Sketcher.Constraint("Tangent", 7, 1, 4, 1),
    Sketcher.Constraint("Tangent", 8, 2, 9, 2),
    Sketcher.Constraint("Tangent", 9, 1, 10, 1),
    Sketcher.Constraint("Tangent", 10, 2, 11, 2),
    Sketcher.Constraint("Tangent", 11, 1, 8, 1),
    Sketcher.Constraint("Tangent", 12, 2, 13, 2),
    Sketcher.Constraint("Tangent", 13, 1, 14, 1),
    Sketcher.Constraint("Tangent", 14, 2, 15, 2),
    Sketcher.Constraint("Tangent", 15, 1, 12, 1),
    Sketcher.Constraint("Tangent", 16, 2, 17, 2),
    Sketcher.Constraint("Tangent", 17, 1, 18, 1),
    Sketcher.Constraint("Tangent", 18, 2, 19, 2),
    Sketcher.Constraint("Tangent", 19, 1, 16, 1),
    Sketcher.Constraint("Tangent", 20, 2, 21, 2),
    Sketcher.Constraint("Tangent", 21, 1, 22, 1),
    Sketcher.Constraint("Tangent", 22, 2, 23, 2),
    Sketcher.Constraint("Tangent", 23, 1, 20, 1),
    Sketcher.Constraint("Tangent", 24, 2, 25, 2),
    Sketcher.Constraint("Tangent", 25, 1, 26, 1),
    Sketcher.Constraint("Tangent", 26, 2, 27, 2),
    Sketcher.Constraint("Tangent", 27, 1, 24, 1),
    Sketcher.Constraint("Tangent", 28, 2, 29, 2),
    Sketcher.Constraint("Tangent", 29, 1, 30, 1),
    Sketcher.Constraint("Tangent", 30, 2, 31, 2),
    Sketcher.Constraint("Tangent", 31, 1, 28, 1),
    Sketcher.Constraint("Tangent", 32, 2, 33, 2),
    Sketcher.Constraint("Tangent", 33, 1, 34, 1),
    Sketcher.Constraint("Tangent", 34, 2, 35, 2),
    Sketcher.Constraint("Tangent", 35, 1, 32, 1),
    Sketcher.Constraint("Tangent", 36, 2, 37, 2),
    Sketcher.Constraint("Tangent", 37, 1, 38, 1),
    Sketcher.Constraint("Tangent", 38, 2, 39, 2),
    Sketcher.Constraint("Tangent", 39, 1, 36, 1),
    Sketcher.Constraint("Tangent", 40, 2, 41, 2),
    Sketcher.Constraint("Tangent", 41, 1, 42, 1),
    Sketcher.Constraint("Tangent", 42, 2, 43, 2),
    Sketcher.Constraint("Tangent", 43, 1, 40, 1),
    Sketcher.Constraint("Tangent", 44, 2, 45, 2),
    Sketcher.Constraint("Tangent", 45, 1, 46, 1),
    Sketcher.Constraint("Tangent", 46, 2, 47, 2),
    Sketcher.Constraint("Tangent", 47, 1, 44, 1),
    Sketcher.Constraint("Tangent", 48, 2, 49, 2),
    Sketcher.Constraint("Tangent", 49, 1, 50, 1),
    Sketcher.Constraint("Tangent", 50, 2, 51, 2),
    Sketcher.Constraint("Tangent", 51, 1, 48, 1),
    Sketcher.Constraint("Vertical", 0),
    Sketcher.Constraint("Vertical", 2),
    Sketcher.Constraint("Vertical", 4),
    Sketcher.Constraint("Vertical", 6),
    Sketcher.Constraint("Vertical", 8),
    Sketcher.Constraint("Vertical", 10),
    Sketcher.Constraint("Vertical", 12),
    Sketcher.Constraint("Vertical", 14),
    Sketcher.Constraint("Vertical", 16),
    Sketcher.Constraint("Vertical", 18),
    Sketcher.Constraint("Vertical", 20),
    Sketcher.Constraint("Vertical", 22),
    Sketcher.Constraint("Vertical", 24),
    Sketcher.Constraint("Vertical", 26),
    Sketcher.Constraint("Vertical", 28),
    Sketcher.Constraint("Vertical", 30),
    Sketcher.Constraint("Vertical", 32),
    Sketcher.Constraint("Vertical", 34),
    Sketcher.Constraint("Vertical", 36),
    Sketcher.Constraint("Vertical", 38),
    Sketcher.Constraint("Vertical", 40),
    Sketcher.Constraint("Vertical", 42),
    Sketcher.Constraint("Vertical", 44),
    Sketcher.Constraint("Vertical", 46),
    Sketcher.Constraint("Vertical", 48),
    Sketcher.Constraint("Vertical", 50),
    Sketcher.Constraint("Equal", 3, 5),
    Sketcher.Constraint("Equal", 7, 9),
    Sketcher.Constraint("Equal", 11, 13),
    Sketcher.Constraint("Equal", 15, 17),
    Sketcher.Constraint("Equal", 19, 21),
    Sketcher.Constraint("Equal", 23, 25),
    Sketcher.Constraint("Equal", 27, 29),
    Sketcher.Constraint("Equal", 31, 33),
    Sketcher.Constraint("Equal", 35, 37),
    Sketcher.Constraint("Equal", 39, 41),
    Sketcher.Constraint("Equal", 43, 45),
    Sketcher.Constraint("Equal", 47, 49),
    Sketcher.Constraint("Horizontal", 3, 3, 5, 3),
    Sketcher.Constraint("Horizontal", 1, 3, 7, 3),
    Sketcher.Constraint("Horizontal", 5, 3, 9, 3),
    Sketcher.Constraint("Horizontal", 7, 3, 11, 3),
    Sketcher.Constraint("Horizontal", 9, 3, 13, 3),
    Sketcher.Constraint("Horizontal", 11, 3, 15, 3),
    Sketcher.Constraint("Horizontal", 13, 3, 17, 3),
    Sketcher.Constraint("Horizontal", 15, 3, 19, 3),
    Sketcher.Constraint("Horizontal", 17, 3, 21, 3),
    Sketcher.Constraint("Horizontal", 19, 3, 23, 3),
    Sketcher.Constraint("Horizontal", 21, 3, 25, 3),
    Sketcher.Constraint("Horizontal", 23, 3, 27, 3),
    Sketcher.Constraint("Horizontal", 25, 3, 29, 3),
    Sketcher.Constraint("Horizontal", 27, 3, 31, 3),
    Sketcher.Constraint("Horizontal", 29, 3, 33, 3),
    Sketcher.Constraint("Horizontal", 31, 3, 35, 3),
    Sketcher.Constraint("Horizontal", 33, 3, 37, 3),
    Sketcher.Constraint("Horizontal", 35, 3, 39, 3),
    Sketcher.Constraint("Horizontal", 37, 3, 41, 3),
    Sketcher.Constraint("Horizontal", 39, 3, 43, 3),
    Sketcher.Constraint("Horizontal", 41, 3, 45, 3),
    Sketcher.Constraint("Horizontal", 43, 3, 47, 3),
    Sketcher.Constraint("Horizontal", 45, 3, 49, 3),
    Sketcher.Constraint("Horizontal", 47, 3, 51, 3),
    Sketcher.Constraint("Radius", 1, Q("2.5 mm")),
    Sketcher.Constraint("DistanceY", 0, 1, 0, 2, Q("7 mm")),
    Sketcher.Constraint("DistanceY", -1, 1, 1, 3, Q("15 mm")),
    Sketcher.Constraint("DistanceX", -1, 1, 1, 3, Q("69.081857 mm")),
    Sketcher.Constraint("DistanceX", -1, 1, 5, 3, Q("59.081857 mm")),
    Sketcher.Constraint("DistanceX", -1, 1, 9, 3, Q("49.081857 mm")),
    Sketcher.Constraint("DistanceX", -1, 1, 13, 3, Q("39.081857 mm")),
    Sketcher.Constraint("DistanceX", -1, 1, 17, 3, Q("29.081857 mm")),
    Sketcher.Constraint("DistanceX", -1, 1, 21, 3, Q("19.081857 mm")),
    Sketcher.Constraint("DistanceX", -1, 1, 25, 3, Q("9.081857 mm")),
    Sketcher.Constraint("DistanceX", 29, 3, -1, 1, Q("0.918143 mm")),
    Sketcher.Constraint("DistanceX", 33, 3, -1, 1, Q("10.918143 mm")),
    Sketcher.Constraint("DistanceX", 37, 3, -1, 1, Q("20.918143 mm")),
    Sketcher.Constraint("DistanceX", 41, 3, -1, 1, Q("30.918143 mm")),
    Sketcher.Constraint("DistanceX", 45, 3, -1, 1, Q("40.918143 mm")),
    Sketcher.Constraint("DistanceX", 49, 3, -1, 1, Q("50.918143 mm")),
])
pocket4 = body.newObject("PartDesign::Pocket", "Pocket003")
pocket4.Profile = sketch6
pocket4.Length = 25
pocket4.Reversed = True

doc.recompute()
